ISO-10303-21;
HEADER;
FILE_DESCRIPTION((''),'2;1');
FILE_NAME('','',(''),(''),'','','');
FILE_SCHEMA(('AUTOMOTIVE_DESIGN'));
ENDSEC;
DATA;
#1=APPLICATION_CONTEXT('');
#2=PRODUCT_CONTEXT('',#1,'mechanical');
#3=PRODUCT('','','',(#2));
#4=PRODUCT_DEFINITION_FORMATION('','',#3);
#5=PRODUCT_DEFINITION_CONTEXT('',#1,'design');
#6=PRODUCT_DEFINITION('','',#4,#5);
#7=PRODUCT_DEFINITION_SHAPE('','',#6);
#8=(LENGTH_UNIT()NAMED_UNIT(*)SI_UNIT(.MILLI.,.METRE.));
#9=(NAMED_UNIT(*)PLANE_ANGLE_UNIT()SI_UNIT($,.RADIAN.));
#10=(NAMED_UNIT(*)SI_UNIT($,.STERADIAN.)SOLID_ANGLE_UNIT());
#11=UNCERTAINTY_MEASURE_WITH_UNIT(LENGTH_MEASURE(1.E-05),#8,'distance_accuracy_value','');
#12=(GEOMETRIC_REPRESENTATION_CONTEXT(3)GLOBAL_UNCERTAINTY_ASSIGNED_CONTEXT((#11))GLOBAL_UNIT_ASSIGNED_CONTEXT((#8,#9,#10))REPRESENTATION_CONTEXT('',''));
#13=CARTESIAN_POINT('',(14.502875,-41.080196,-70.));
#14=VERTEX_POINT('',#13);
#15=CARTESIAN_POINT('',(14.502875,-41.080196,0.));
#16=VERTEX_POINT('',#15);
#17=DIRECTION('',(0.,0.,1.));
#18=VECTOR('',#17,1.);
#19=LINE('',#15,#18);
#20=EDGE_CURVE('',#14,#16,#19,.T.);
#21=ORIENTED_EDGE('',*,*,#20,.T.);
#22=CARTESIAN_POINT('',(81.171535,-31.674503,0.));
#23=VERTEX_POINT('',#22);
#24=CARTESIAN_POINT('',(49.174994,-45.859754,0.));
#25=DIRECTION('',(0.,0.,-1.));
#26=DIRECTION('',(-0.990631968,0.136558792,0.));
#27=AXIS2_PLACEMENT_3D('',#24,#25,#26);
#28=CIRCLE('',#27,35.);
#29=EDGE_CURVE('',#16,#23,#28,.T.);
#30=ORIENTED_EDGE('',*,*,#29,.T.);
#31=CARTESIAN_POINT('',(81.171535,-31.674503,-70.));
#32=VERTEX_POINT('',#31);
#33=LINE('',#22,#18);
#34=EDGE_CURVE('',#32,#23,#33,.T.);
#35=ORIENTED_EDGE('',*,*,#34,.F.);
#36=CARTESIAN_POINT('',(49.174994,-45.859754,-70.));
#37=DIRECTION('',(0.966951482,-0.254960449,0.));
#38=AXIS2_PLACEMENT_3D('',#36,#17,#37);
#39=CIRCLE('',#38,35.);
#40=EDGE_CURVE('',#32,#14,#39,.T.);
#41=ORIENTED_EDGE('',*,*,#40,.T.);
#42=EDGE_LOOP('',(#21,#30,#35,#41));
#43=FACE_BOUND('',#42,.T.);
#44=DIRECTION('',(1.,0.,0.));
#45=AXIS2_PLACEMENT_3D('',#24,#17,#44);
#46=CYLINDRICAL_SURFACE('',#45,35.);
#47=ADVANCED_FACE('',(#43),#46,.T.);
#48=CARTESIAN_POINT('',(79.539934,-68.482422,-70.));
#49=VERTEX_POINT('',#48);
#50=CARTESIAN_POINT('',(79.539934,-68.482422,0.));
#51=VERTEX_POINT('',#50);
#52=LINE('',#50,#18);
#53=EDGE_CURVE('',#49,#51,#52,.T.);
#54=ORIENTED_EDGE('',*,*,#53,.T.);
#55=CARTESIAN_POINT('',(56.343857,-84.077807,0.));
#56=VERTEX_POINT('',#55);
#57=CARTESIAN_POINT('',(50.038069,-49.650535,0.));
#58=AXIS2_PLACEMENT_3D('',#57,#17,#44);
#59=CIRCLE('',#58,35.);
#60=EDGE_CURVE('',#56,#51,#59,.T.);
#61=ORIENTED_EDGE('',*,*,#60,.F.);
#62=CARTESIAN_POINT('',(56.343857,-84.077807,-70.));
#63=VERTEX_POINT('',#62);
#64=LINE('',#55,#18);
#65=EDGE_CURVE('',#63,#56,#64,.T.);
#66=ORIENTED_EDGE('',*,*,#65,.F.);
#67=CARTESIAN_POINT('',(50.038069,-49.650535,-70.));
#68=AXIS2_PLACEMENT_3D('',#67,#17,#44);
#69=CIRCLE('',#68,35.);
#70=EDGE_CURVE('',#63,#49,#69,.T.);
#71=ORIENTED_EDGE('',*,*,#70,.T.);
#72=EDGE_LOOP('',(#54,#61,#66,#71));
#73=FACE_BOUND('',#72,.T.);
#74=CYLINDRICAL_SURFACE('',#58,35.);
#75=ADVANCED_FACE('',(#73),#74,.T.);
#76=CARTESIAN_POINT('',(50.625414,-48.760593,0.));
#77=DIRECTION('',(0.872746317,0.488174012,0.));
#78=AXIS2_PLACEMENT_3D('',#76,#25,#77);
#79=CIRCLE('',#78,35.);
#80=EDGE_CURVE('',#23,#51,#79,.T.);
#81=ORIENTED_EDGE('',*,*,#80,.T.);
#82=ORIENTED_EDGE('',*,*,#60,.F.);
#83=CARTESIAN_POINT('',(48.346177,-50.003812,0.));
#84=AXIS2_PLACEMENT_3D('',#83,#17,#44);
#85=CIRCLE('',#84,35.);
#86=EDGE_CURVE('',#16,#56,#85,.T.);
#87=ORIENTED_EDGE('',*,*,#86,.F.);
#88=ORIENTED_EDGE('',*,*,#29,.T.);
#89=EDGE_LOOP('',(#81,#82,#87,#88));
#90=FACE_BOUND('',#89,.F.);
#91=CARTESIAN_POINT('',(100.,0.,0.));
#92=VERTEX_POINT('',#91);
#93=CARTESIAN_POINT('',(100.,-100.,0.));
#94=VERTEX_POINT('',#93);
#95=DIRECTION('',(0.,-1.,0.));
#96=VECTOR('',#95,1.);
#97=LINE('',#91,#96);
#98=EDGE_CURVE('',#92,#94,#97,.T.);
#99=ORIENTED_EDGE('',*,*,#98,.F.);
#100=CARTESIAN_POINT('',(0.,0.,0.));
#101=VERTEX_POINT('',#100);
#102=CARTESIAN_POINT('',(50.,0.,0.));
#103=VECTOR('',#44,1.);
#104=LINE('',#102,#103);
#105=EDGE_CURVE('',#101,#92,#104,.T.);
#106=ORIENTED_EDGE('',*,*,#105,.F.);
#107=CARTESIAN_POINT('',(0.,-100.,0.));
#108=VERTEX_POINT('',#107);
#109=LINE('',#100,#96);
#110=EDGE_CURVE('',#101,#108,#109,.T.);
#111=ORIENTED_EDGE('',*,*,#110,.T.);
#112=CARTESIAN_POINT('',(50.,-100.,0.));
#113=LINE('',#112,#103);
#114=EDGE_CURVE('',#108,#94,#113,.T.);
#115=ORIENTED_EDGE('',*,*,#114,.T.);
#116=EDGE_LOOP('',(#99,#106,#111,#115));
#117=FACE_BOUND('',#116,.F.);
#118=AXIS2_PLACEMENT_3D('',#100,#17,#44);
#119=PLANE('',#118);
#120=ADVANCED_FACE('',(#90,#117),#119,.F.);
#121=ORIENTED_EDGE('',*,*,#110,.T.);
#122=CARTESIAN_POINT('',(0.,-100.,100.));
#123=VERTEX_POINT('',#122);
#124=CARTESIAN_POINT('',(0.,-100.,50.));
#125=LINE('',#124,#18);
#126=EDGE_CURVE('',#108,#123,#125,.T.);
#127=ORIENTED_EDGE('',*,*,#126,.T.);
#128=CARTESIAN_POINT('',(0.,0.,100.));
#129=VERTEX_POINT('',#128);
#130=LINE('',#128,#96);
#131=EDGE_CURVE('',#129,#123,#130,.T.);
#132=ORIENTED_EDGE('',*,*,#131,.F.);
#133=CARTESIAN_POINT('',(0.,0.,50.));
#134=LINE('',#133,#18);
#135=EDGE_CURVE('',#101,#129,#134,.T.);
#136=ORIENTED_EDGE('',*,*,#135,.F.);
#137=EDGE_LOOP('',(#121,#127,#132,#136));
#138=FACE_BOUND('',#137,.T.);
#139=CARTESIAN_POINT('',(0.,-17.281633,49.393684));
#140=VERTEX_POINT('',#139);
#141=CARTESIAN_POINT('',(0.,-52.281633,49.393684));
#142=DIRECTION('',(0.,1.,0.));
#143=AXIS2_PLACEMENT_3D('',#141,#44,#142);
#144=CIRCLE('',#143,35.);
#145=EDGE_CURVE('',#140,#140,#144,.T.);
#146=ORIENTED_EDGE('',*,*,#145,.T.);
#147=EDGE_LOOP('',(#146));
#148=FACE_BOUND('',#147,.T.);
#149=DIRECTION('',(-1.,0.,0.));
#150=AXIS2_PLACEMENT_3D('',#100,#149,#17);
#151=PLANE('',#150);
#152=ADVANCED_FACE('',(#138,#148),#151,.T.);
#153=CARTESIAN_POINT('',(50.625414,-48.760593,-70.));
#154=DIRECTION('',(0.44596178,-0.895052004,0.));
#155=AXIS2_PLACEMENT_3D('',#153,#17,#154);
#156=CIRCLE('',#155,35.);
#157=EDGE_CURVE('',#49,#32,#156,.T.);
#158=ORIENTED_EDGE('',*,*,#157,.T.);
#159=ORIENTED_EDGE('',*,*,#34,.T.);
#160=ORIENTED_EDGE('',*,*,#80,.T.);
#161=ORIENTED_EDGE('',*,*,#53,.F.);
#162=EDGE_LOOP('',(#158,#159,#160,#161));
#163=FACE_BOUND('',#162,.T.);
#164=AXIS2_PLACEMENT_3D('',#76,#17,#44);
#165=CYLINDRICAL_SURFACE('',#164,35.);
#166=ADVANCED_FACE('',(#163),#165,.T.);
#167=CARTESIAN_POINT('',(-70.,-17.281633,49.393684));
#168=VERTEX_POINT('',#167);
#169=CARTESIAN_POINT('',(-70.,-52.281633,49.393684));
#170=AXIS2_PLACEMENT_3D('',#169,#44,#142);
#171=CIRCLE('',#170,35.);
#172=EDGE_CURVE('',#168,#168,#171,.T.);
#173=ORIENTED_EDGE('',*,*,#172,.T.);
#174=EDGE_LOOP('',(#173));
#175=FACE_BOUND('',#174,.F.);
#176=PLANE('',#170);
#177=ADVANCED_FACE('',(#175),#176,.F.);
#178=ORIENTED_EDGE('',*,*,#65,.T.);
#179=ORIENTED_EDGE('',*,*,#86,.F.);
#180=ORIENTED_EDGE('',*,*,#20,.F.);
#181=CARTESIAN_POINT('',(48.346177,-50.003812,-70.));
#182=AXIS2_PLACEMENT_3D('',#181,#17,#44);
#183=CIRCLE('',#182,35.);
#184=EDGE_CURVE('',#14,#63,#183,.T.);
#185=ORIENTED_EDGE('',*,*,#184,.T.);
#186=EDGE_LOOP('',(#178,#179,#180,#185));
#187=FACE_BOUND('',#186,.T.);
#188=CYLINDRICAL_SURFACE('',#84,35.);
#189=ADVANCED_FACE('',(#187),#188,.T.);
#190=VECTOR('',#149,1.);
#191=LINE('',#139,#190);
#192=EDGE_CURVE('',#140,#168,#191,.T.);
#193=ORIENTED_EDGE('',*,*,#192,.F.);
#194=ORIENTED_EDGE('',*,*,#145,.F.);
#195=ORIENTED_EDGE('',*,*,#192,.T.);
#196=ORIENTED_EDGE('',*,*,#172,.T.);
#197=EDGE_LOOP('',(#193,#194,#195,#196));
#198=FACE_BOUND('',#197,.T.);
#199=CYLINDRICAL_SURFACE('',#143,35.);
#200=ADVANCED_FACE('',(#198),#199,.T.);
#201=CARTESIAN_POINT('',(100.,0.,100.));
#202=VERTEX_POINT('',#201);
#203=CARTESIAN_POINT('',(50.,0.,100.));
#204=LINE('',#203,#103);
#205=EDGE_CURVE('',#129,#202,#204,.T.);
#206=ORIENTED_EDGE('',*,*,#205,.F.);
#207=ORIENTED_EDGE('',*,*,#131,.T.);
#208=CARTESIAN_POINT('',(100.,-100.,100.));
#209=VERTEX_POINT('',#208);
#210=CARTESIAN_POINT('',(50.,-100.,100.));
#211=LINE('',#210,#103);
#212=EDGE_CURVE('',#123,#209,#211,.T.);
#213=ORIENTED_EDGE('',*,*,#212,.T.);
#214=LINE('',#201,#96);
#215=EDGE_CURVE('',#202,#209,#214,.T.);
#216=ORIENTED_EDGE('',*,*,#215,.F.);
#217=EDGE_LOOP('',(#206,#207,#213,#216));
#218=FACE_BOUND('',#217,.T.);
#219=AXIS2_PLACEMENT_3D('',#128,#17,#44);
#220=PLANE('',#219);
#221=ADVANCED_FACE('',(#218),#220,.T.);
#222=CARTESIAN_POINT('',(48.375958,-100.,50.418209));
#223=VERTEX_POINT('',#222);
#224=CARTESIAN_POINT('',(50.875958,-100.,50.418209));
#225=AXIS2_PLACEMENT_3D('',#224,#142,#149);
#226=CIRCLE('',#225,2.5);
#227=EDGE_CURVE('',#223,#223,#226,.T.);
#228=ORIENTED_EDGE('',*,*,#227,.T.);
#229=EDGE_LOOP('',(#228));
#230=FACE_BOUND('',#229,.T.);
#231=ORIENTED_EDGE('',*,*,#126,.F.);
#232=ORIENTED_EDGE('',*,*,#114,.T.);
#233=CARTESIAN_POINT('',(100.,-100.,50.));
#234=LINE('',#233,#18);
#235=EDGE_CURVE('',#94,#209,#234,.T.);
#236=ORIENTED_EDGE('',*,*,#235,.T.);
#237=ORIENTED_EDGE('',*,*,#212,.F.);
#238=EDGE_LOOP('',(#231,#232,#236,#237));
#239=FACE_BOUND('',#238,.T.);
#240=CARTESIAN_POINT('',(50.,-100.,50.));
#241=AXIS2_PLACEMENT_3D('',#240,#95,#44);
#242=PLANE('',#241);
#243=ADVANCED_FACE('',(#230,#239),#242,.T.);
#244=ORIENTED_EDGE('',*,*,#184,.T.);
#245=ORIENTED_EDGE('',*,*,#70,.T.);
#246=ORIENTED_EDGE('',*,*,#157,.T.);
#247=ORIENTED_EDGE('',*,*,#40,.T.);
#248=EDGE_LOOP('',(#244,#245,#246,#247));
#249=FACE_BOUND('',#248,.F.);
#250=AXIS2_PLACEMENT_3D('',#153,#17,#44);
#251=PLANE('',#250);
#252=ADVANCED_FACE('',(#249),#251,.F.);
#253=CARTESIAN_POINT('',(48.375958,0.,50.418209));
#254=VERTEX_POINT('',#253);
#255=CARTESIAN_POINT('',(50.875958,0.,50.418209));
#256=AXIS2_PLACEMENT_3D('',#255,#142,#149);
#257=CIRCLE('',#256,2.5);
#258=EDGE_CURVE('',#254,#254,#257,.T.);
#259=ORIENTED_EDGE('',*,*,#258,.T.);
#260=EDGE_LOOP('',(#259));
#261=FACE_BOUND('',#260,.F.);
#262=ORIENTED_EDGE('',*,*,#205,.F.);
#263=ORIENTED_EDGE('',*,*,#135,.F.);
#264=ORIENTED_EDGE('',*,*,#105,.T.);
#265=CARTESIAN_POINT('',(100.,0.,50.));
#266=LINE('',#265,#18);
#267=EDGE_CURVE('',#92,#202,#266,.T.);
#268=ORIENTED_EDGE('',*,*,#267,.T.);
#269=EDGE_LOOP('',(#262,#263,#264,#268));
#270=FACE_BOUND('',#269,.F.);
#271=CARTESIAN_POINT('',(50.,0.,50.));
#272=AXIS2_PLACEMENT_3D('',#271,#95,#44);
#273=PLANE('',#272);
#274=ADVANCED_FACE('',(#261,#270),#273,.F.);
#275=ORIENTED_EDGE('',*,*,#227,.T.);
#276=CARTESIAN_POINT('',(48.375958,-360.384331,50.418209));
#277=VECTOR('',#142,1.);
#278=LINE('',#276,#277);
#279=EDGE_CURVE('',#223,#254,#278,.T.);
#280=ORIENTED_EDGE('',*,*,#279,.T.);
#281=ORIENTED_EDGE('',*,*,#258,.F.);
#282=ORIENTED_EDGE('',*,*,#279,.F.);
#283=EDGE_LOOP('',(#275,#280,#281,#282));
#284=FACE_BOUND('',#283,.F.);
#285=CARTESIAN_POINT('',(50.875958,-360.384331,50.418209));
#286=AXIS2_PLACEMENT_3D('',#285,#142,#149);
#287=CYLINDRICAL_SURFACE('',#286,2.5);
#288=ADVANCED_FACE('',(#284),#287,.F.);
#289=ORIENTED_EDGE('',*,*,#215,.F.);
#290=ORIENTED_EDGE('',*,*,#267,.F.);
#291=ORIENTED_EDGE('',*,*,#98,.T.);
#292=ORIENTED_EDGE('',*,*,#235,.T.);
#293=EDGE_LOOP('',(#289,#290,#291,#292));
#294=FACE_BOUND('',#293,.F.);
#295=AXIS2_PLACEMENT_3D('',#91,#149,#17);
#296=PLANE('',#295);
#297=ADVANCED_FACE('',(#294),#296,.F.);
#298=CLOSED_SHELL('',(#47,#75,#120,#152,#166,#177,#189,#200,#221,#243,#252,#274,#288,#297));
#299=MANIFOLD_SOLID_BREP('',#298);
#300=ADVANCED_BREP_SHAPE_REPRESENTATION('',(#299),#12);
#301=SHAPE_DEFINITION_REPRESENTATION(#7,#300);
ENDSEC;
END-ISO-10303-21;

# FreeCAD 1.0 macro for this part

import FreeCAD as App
import Part
import Sketcher

doc = App.newDocument("Part")
body = doc.addObject("PartDesign::Body", "Body")

# Sketch on XZ plane
sketch1 = body.newObject("Sketcher::SketchObject", "Sketch")
sketch1.AttachmentSupport = (doc.getObject("XZ_Plane"), [""])
sketch1.MapMode = "FlatFace"
sketch1.addGeometry(Part.LineSegment(App.Vector(0, 100, 0), App.Vector(0, 0, 0)), False)
sketch1.addGeometry(Part.LineSegment(App.Vector(0, 0, 0), App.Vector(100, 0, 0)), False)
sketch1.addGeometry(Part.LineSegment(App.Vector(100, 0, 0), App.Vector(100, 100, 0)), False)
sketch1.addGeometry(Part.LineSegment(App.Vector(100, 100, 0), App.Vector(0, 100, 0)), False)
sketch1.addConstraint(Sketcher.Constraint("Coincident", 0, 2, 1, 1))
sketch1.addConstraint(Sketcher.Constraint("Coincident", 1, 2, 2, 1))
sketch1.addConstraint(Sketcher.Constraint("Coincident", 2, 2, 3, 1))
sketch1.addConstraint(Sketcher.Constraint("Coincident", 3, 2, 0, 1))
sketch1.addConstraint(Sketcher.Constraint("Vertical", 0))
sketch1.addConstraint(Sketcher.Constraint("Horizontal", 1))
sketch1.addConstraint(Sketcher.Constraint("Vertical", 2))
sketch1.addConstraint(Sketcher.Constraint("Horizontal", 3))
sketch1.addConstraint(Sketcher.Constraint("Coincident", 0, 2, -1, 1))
sketch1.addConstraint(Sketcher.Constraint("Equal", 3, 0))
sketch1.addConstraint(Sketcher.Constraint("DistanceX", 1, 1, 1, 2, 100.0))
pad1 = body.newObject("PartDesign::Pad", "Pad")
pad1.Profile = sketch1
pad1.Length = 100

# Sketch on XY plane
sketch2 = body.newObject("Sketcher::SketchObject", "Sketch001")
sketch2.AttachmentSupport = (doc.getObject("XY_Plane"), [""])
sketch2.MapMode = "FlatFace"
sketch2.addGeometry(Part.Circle(App.Vector(48, -50, 0), App.Vector(0, 0, 1), 35), False)
sketch2.addConstraint(Sketcher.Constraint("Diameter", 0, 70.0))
sketch2.addConstraint(Sketcher.Constraint("DistanceX", -1, 1, 0, 3, 48.346177))
sketch2.addConstraint(Sketcher.Constraint("DistanceY", 0, 3, -1, 1, 50.003812))
pad2 = body.newObject("PartDesign::Pad", "Pad001")
pad2.Profile = sketch2
pad2.Length = 70
pad2.Reversed = True

# Sketch on XY plane
sketch3 = body.newObject("Sketcher::SketchObject", "Sketch002")
sketch3.AttachmentSupport = (doc.getObject("XY_Plane"), [""])
sketch3.MapMode = "FlatFace"
sketch3.addGeometry(Part.Circle(App.Vector(49, -46, 0), App.Vector(0, 0, 1), 35), False)
sketch3.addConstraint(Sketcher.Constraint("Diameter", 0, 70.0))
sketch3.addConstraint(Sketcher.Constraint("DistanceX", -1, 1, 0, 3, 49.174994))
sketch3.addConstraint(Sketcher.Constraint("DistanceY", 0, 3, -1, 1, 45.859754))
pad3 = body.newObject("PartDesign::Pad", "Pad002")
pad3.Profile = sketch3
pad3.Length = 70
pad3.Reversed = True

# Sketch on XY plane
sketch4 = body.newObject("Sketcher::SketchObject", "Sketch003")
sketch4.AttachmentSupport = (doc.getObject("XY_Plane"), [""])
sketch4.MapMode = "FlatFace"
sketch4.addGeometry(Part.Circle(App.Vector(49, -50, 0), App.Vector(0, 0, 1), 35), False)
sketch4.addConstraint(Sketcher.Constraint("Diameter", 0, 70.0))
sketch4.addConstraint(Sketcher.Constraint("DistanceX", -1, 1, 0, 3, 48.553377))
sketch4.addConstraint(Sketcher.Constraint("DistanceY", 0, 3, -1, 1, 49.589396))
pad4 = body.newObject("PartDesign::Pad", "Pad003")
pad4.Profile = sketch4
pad4.Length = 70
pad4.Reversed = True

# Sketch on XY plane
sketch5 = body.newObject("Sketcher::SketchObject", "Sketch004")
sketch5.AttachmentSupport = (doc.getObject("XY_Plane"), [""])
sketch5.MapMode = "FlatFace"
sketch5.addGeometry(Part.Circle(App.Vector(51, -49, 0), App.Vector(0, 0, 1), 35), False)
sketch5.addConstraint(Sketcher.Constraint("Diameter", 0, 70.0))
sketch5.addConstraint(Sketcher.Constraint("DistanceX", -1, 1, 0, 3, 50.625414))
sketch5.addConstraint(Sketcher.Constraint("DistanceY", 0, 3, -1, 1, 48.760593))
pad5 = body.newObject("PartDesign::Pad", "Pad004")
pad5.Profile = sketch5
pad5.Length = 70
pad5.Reversed = True

# Sketch on XY plane
sketch6 = body.newObject("Sketcher::SketchObject", "Sketch005")
sketch6.AttachmentSupport = (doc.getObject("XY_Plane"), [""])
sketch6.MapMode = "FlatFace"
sketch6.addGeometry(Part.Circle(App.Vector(50, -50, 0), App.Vector(0, 0, 1), 35), False)
sketch6.addConstraint(Sketcher.Constraint("Diameter", 0, 70.0))
sketch6.addConstraint(Sketcher.Constraint("DistanceX", -1, 1, 0, 3, 50.038069))
sketch6.addConstraint(Sketcher.Constraint("DistanceY", 0, 3, -1, 1, 49.650535))
pad6 = body.newObject("PartDesign::Pad", "Pad005")
pad6.Profile = sketch6
pad6.Length = 70
pad6.Reversed = True

# Sketch on XY plane
sketch7 = body.newObject("Sketcher::SketchObject", "Sketch006")
sketch7.AttachmentSupport = (doc.getObject("XY_Plane"), [""])
sketch7.MapMode = "FlatFace"
sketch7.AttachmentOffset = App.Placement(App.Vector(0, 0, 100), App.Rotation())
sketch7.addGeometry(Part.Circle(App.Vector(50, -51, 0), App.Vector(0, 0, 1), 35), False)
sketch7.addConstraint(Sketcher.Constraint("Diameter", 0, 70.0))
sketch7.addConstraint(Sketcher.Constraint("DistanceY", 0, 3, -1, 1, 51.418651))
sketch7.addConstraint(Sketcher.Constraint("DistanceX", -1, 1, 0, 3, 49.716454))
pad7 = body.newObject("PartDesign::Pad", "Pad006")
pad7.Profile = sketch7
pad7.Length = 25
pad7.Reversed = True

# Sketch on YZ plane
sketch8 = body.newObject("Sketcher::SketchObject", "Sketch007")
sketch8.AttachmentSupport = (doc.getObject("YZ_Plane"), [""])
sketch8.MapMode = "FlatFace"
sketch8.addGeometry(Part.Circle(App.Vector(-52, 49, 0), App.Vector(0, 0, 1), 35), False)
sketch8.addConstraint(Sketcher.Constraint("Diameter", 0, 70.0))
sketch8.addConstraint(Sketcher.Constraint("DistanceX", 0, 3, -1, 1, 52.281633))
sketch8.addConstraint(Sketcher.Constraint("DistanceY", -1, 1, 0, 3, 49.393684))
pad8 = body.newObject("PartDesign::Pad", "Pad007")
pad8.Profile = sketch8
pad8.Length = 70
pad8.Reversed = True

# Sketch on XZ plane
sketch9 = body.newObject("Sketcher::SketchObject", "Sketch008")
sketch9.AttachmentSupport = (doc.getObject("XZ_Plane"), [""])
sketch9.MapMode = "FlatFace"
sketch9.AttachmentOffset = App.Placement(App.Vector(0, 0, 100), App.Rotation())
sketch9.addGeometry(Part.Circle(App.Vector(50.9, 50.4, 0), App.Vector(0, 0, 1), 2.5), False)
sketch9.addConstraint(Sketcher.Constraint("Diameter", 0, 5.0))
sketch9.addConstraint(Sketcher.Constraint("DistanceY", -1, 1, 0, 3, 50.418209))
sketch9.addConstraint(Sketcher.Constraint("DistanceX", -1, 1, 0, 3, 50.875958))
doc.recompute()
hole = body.newObject("PartDesign::Hole", "Hole")
hole.Profile = sketch9
hole.ThreadType = "None"
hole.Diameter = 5
hole.DepthType = "ThroughAll"

doc.recompute()
